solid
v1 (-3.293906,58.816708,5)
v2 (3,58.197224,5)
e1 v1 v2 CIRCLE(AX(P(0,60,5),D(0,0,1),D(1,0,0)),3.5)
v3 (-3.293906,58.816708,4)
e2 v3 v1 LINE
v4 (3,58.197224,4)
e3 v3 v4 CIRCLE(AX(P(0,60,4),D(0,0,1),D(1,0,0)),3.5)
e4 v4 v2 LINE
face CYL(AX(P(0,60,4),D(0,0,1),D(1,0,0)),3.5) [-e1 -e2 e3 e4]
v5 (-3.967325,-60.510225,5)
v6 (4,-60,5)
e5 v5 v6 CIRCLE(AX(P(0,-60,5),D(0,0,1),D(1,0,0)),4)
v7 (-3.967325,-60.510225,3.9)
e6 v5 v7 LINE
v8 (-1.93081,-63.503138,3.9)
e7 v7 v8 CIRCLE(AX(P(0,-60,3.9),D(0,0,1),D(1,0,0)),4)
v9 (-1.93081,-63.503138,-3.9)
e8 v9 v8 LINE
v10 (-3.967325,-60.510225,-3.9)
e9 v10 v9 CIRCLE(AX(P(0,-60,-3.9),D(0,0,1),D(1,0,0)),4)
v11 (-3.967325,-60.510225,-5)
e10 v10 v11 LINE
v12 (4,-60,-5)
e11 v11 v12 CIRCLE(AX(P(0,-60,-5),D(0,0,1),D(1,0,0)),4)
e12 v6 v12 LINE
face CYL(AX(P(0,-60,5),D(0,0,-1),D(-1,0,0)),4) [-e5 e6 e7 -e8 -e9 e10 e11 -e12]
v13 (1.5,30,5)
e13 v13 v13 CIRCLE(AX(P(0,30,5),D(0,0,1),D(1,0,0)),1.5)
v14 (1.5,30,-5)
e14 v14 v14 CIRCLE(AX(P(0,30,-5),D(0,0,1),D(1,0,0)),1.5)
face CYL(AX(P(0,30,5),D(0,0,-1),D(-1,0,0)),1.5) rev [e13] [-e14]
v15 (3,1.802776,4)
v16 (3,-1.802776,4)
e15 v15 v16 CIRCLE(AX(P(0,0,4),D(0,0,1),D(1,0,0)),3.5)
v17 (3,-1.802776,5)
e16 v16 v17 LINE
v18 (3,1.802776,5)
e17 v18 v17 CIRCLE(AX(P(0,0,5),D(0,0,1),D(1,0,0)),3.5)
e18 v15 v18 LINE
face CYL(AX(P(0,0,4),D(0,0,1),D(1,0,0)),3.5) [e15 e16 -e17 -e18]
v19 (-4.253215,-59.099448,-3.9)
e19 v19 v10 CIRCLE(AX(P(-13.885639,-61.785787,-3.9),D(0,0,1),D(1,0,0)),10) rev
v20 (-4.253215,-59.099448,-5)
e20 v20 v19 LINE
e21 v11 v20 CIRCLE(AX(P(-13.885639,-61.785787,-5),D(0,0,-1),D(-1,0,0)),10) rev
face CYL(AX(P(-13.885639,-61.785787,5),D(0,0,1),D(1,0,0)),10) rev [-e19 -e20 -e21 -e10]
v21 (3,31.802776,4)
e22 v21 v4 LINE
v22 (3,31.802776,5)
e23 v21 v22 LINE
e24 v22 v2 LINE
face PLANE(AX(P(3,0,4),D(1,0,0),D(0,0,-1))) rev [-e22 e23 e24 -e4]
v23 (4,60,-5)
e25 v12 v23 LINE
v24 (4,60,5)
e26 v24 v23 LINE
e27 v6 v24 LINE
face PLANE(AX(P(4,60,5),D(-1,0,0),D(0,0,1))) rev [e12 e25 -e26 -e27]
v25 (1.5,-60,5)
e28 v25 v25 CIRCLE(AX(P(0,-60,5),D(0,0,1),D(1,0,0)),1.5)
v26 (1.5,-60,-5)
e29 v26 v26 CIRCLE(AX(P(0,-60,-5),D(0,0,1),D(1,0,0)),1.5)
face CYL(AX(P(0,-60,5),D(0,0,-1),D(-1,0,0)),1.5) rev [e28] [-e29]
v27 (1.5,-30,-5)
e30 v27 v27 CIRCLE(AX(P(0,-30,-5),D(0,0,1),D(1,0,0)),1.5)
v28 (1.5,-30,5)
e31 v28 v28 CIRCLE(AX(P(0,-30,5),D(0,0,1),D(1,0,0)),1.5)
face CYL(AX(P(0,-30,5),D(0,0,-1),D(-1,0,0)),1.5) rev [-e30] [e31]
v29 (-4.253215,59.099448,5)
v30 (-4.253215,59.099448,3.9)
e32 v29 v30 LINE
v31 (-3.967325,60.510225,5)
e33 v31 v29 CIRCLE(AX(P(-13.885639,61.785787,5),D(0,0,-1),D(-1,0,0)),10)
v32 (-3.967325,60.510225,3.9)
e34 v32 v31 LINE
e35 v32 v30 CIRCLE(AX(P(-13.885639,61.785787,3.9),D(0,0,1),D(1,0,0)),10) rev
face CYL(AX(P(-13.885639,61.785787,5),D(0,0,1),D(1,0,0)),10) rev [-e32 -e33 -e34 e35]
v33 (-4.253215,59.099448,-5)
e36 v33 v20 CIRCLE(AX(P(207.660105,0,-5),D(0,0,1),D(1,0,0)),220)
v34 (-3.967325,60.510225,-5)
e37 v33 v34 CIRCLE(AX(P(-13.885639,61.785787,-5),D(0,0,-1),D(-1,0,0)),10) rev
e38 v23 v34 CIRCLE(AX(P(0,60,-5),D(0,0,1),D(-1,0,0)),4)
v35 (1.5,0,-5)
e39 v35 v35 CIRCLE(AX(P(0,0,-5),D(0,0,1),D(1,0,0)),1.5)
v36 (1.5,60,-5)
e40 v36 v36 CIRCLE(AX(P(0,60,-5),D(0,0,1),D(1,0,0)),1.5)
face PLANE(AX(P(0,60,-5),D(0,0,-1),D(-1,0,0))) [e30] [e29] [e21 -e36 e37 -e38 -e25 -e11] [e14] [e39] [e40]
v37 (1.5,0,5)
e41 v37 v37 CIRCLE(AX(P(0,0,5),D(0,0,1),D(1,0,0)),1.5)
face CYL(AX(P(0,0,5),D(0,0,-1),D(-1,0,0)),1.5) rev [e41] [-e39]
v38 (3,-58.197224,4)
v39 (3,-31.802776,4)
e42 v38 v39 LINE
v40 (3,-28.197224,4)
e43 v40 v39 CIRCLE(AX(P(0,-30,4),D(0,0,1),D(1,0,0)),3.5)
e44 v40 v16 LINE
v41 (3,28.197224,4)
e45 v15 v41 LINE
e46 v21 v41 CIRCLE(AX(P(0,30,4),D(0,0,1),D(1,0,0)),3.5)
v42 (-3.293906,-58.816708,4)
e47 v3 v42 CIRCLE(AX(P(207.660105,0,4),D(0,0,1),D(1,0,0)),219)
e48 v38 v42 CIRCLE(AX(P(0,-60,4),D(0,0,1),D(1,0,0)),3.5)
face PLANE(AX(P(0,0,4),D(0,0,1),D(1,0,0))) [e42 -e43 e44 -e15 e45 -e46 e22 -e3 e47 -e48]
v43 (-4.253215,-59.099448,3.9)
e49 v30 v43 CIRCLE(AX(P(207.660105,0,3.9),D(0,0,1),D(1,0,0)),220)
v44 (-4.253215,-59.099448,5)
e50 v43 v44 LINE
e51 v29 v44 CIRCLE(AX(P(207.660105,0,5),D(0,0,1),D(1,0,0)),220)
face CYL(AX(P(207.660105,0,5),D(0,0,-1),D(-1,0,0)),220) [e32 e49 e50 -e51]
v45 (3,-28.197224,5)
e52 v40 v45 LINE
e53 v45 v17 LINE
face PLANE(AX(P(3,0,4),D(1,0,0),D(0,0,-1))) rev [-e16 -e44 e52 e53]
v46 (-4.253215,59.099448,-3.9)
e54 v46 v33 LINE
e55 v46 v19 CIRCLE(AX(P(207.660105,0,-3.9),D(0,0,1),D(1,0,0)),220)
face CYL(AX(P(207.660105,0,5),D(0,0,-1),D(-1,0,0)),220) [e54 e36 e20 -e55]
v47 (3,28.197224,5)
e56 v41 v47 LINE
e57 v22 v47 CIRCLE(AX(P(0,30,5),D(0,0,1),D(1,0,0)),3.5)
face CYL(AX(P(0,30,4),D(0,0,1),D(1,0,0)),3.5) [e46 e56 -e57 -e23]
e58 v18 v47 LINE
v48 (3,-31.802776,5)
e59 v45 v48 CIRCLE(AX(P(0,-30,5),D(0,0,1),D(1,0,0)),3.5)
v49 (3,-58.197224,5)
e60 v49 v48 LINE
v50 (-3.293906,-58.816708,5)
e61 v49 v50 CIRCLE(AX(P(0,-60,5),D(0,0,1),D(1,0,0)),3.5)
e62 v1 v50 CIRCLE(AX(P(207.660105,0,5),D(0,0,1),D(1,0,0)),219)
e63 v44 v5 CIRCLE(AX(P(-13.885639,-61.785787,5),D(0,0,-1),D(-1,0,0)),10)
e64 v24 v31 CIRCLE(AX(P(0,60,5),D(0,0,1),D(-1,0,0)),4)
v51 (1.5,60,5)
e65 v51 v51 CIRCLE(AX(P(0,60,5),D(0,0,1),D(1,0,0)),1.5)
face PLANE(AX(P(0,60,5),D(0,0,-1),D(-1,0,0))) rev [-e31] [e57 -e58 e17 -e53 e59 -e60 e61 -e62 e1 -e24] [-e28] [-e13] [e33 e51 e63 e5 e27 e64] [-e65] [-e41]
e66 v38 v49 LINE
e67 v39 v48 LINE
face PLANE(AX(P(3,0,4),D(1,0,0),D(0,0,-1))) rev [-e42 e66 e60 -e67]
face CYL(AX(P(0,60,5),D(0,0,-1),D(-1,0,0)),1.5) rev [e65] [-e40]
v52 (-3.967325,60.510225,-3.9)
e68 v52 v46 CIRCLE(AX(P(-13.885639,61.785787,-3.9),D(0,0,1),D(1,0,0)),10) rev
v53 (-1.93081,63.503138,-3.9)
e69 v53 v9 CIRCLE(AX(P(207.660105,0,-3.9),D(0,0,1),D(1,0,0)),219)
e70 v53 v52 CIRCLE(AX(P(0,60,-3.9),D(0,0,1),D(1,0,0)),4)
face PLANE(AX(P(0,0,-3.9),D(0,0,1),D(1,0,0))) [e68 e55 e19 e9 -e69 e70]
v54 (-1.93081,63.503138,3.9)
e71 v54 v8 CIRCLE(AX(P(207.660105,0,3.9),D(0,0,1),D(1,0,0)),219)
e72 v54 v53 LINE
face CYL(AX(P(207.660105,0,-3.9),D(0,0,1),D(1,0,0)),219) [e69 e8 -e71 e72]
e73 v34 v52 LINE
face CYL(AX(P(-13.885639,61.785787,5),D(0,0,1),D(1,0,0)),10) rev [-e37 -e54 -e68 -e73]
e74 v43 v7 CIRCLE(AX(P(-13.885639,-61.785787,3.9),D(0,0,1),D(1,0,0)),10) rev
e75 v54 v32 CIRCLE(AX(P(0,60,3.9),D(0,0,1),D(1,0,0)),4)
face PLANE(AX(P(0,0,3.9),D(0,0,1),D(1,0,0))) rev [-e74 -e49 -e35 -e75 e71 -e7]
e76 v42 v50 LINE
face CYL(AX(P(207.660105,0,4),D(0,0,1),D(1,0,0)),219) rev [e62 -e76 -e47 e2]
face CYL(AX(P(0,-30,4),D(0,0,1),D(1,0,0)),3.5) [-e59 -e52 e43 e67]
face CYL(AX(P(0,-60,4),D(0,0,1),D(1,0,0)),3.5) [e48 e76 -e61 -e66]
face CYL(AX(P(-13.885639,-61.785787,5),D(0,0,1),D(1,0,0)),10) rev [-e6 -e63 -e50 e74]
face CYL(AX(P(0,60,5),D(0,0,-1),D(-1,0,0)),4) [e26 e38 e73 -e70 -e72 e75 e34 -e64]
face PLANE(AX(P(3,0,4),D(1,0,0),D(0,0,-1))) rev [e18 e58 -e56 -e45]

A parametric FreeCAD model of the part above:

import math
import FreeCAD as App
import Part
import Sketcher

V = App.Vector
Q = App.Units.Quantity


def edges_at(feature, points):
    """Names of the edges that pass closest to the given points."""
    edges = feature.Shape.Edges
    near = lambda p: min(range(len(edges)), key=lambda i: edges[i].distToShape(Part.Vertex(*p))[0])
    return sorted({f"Edge{near(p) + 1}" for p in points})

doc = App.newDocument("Part")
body = doc.addObject("PartDesign::Body", "Body")

sketch1 = doc.addObject("Sketcher::SketchObject", "Sketch")
body.addObject(sketch1)
sketch1.AttachmentSupport = (doc.XY_Plane, [""])
sketch1.MapMode = "FlatFace"
sketch1.addGeometry([
    Part.LineSegment(V(4, -60, 0), V(4, 60, 0)),
    Part.ArcOfCircle(Part.Circle(V(0, 60, 0), V(0, 0, 1), 4), math.radians(0), math.radians(180)),
    Part.ArcOfCircle(Part.Circle(V(207.7, 0, 0), V(0, 0, 1), 220), math.radians(164), math.radians(196)),
    Part.ArcOfCircle(Part.Circle(V(0, -60, 0), V(0, 0, 1), 4), math.radians(180), math.radians(360)),
    Part.Circle(V(0, -60, 0), V(0, 0, 1), 1.5),
    Part.Circle(V(0, -30, 0), V(0, 0, 1), 1.5),
    Part.Circle(V(0, 0, 0), V(0, 0, 1), 1.5),
    Part.Circle(V(0, 30, 0), V(0, 0, 1), 1.5),
    Part.Circle(V(0, 60, 0), V(0, 0, 1), 1.5),
], False)
sketch1.addConstraint([
    Sketcher.Constraint("Tangent", 0, 2, 1, 1),
    Sketcher.Constraint("Coincident", 1, 2, 2, 1),
    Sketcher.Constraint("Coincident", 2, 2, 3, 1),
    Sketcher.Constraint("Tangent", 3, 2, 0, 1),
    Sketcher.Constraint("Vertical", 0),
    Sketcher.Constraint("Coincident", 6, 3, -1, 1),
    Sketcher.Constraint("Coincident", 4, 3, 3, 3),
    Sketcher.Constraint("Coincident", 8, 3, 1, 3),
    Sketcher.Constraint("Equal", 1, 3),
    Sketcher.Constraint("Equal", 4, 5),
    Sketcher.Constraint("Equal", 5, 6),
    Sketcher.Constraint("Equal", 6, 7),
    Sketcher.Constraint("Equal", 7, 8),
    Sketcher.Constraint("Symmetric", 1, 3, 3, 3, -1, 1),
    Sketcher.Constraint("Symmetric", 5, 3, 7, 3, -1, 1),
    Sketcher.Constraint("PointOnObject", 2, 3, -1),
    Sketcher.Constraint("PointOnObject", 5, 3, -2),
    Sketcher.Constraint("Horizontal", 0, 2, 1, 2),
    Sketcher.Constraint("Diameter", 4, Q("3 mm")),
    Sketcher.Constraint("Radius", 1, Q("4 mm")),
    Sketcher.Constraint("Radius", 2, Q("220 mm")),
    Sketcher.Constraint("DistanceY", 0, 1, 0, 2, Q("120 mm")),
    Sketcher.Constraint("DistanceY", 5, 3, -1, 1, Q("30 mm")),
])
pad1 = doc.addObject("PartDesign::Pad", "Pad")
body.addObject(pad1)
pad1.Profile = sketch1
pad1.Length = 10
pad1.Midplane = True
doc.recompute()

fillet = doc.addObject("PartDesign::Fillet", "Fillet")
body.addObject(fillet)
fillet.Base = (pad1, edges_at(pad1, [(-4, -60, 0), (-4, 60, 0)]))
fillet.Radius = 10

sketch2 = doc.addObject("Sketcher::SketchObject", "Sketch001")
body.addObject(sketch2)
sketch2.AttachmentSupport = (doc.XY_Plane, [""])
sketch2.MapMode = "FlatFace"
sketch2.AttachmentOffset = App.Placement(V(0, 0, 5), App.Rotation())
sketch2.addGeometry([
    Part.ArcOfCircle(Part.Circle(V(0, -60, 0), V(0, 0, 1), 3.5), math.radians(31), math.radians(160)),
    Part.LineSegment(V(3, -58.2, 0), V(3, -31.8, 0)),
    Part.ArcOfCircle(Part.Circle(V(0, -30, 0), V(0, 0, 1), 3.5), math.radians(31), math.radians(329)),
    Part.LineSegment(V(3, -28.2, 0), V(3, -1.8, 0)),
    Part.ArcOfCircle(Part.Circle(V(0, 0, 0), V(0, 0, 1), 3.5), math.radians(31), math.radians(329)),
    Part.LineSegment(V(3, 1.8, 0), V(3, 28.2, 0)),
    Part.ArcOfCircle(Part.Circle(V(0, 30, 0), V(0, 0, 1), 3.5), math.radians(31), math.radians(329)),
    Part.LineSegment(V(3, 31.8, 0), V(3, 58.2, 0)),
    Part.ArcOfCircle(Part.Circle(V(0, 60, 0), V(0, 0, 1), 3.5), math.radians(-160), math.radians(-31)),
    Part.ArcOfCircle(Part.Circle(V(207.7, 0, 0), V(0, 0, 1), 219), math.radians(164), math.radians(196)),
], False)
sketch2.addConstraint([
    Sketcher.Constraint("Coincident", 0, 1, 1, 1),
    Sketcher.Constraint("Coincident", 1, 2, 2, 2),
    Sketcher.Constraint("Coincident", 2, 1, 3, 1),
    Sketcher.Constraint("Coincident", 3, 2, 4, 2),
    Sketcher.Constraint("Coincident", 4, 1, 5, 1),
    Sketcher.Constraint("Coincident", 5, 2, 6, 2),
    Sketcher.Constraint("Coincident", 6, 1, 7, 1),
    Sketcher.Constraint("Coincident", 7, 2, 8, 2),
    Sketcher.Constraint("Coincident", 8, 1, 9, 1),
    Sketcher.Constraint("Coincident", 9, 2, 0, 2),
    Sketcher.Constraint("Vertical", 1),
    Sketcher.Constraint("Vertical", 3),
    Sketcher.Constraint("Vertical", 5),
    Sketcher.Constraint("Vertical", 7),
    Sketcher.Constraint("Coincident", 4, 3, -1, 1),
    Sketcher.Constraint("Equal", 0, 2),
    Sketcher.Constraint("Equal", 2, 4),
    Sketcher.Constraint("Equal", 4, 6),
    Sketcher.Constraint("Equal", 6, 8),
    Sketcher.Constraint("Symmetric", 2, 3, 6, 3, -1, 1),
    Sketcher.Constraint("Symmetric", 0, 3, 8, 3, -1, 1),
    Sketcher.Constraint("Symmetric", 2, 1, 5, 2, -1),
    Sketcher.Constraint("Symmetric", 0, 1, 7, 2, -1),
    Sketcher.Constraint("PointOnObject", 9, 3, -1),
    Sketcher.Constraint("Vertical", 1, 2, 2, 1),
    Sketcher.Constraint("Equal", 1, 3),
    Sketcher.Constraint("Radius", 9, Q("219 mm")),
    Sketcher.Constraint("Radius", 0, Q("3.5 mm")),
    Sketcher.Constraint("DistanceY", 0, 3, -1, 1, Q("60 mm")),
    Sketcher.Constraint("DistanceX", -1, 1, 0, 1, Q("3 mm")),
    Sketcher.Constraint("DistanceX", -1, 1, 9, 3, Q("207.660105 mm")),
])
pocket1 = doc.addObject("PartDesign::Pocket", "Pocket")
body.addObject(pocket1)
pocket1.Profile = sketch2
pocket1.Length = 1

sketch3 = doc.addObject("Sketcher::SketchObject", "Sketch002")
body.addObject(sketch3)
sketch3.AttachmentSupport = (doc.XY_Plane, [""])
sketch3.MapMode = "FlatFace"
sketch3.addGeometry([
    Part.ArcOfCircle(Part.Circle(V(208, 0, 0), V(0, 0, 1), 219), math.radians(161.36), math.radians(164.42)),
    Part.LineSegment(V(0, 70, 0), V(-50, 70, 0)),
    Part.LineSegment(V(-50, 70, 0), V(-50, -70, 0)),
    Part.LineSegment(V(-50, -70, 0), V(0, -70, 0)),
    Part.ArcOfCircle(Part.Circle(V(208, 0, 0), V(0, 0, 1), 219), math.radians(-164.42), math.radians(-161.36)),
    Part.ArcOfCircle(Part.Circle(V(208, 0, 0), V(0, 0, 1), 219), math.radians(164), math.radians(196)),
], False)
sketch3.addConstraint([
    Sketcher.Constraint("Coincident", 0, 1, 1, 1),
    Sketcher.Constraint("Coincident", 1, 2, 2, 1),
    Sketcher.Constraint("Coincident", 2, 2, 3, 1),
    Sketcher.Constraint("Coincident", 3, 2, 4, 2),
    Sketcher.Constraint("Tangent", 4, 1, 5, 2),
    Sketcher.Constraint("Tangent", 5, 1, 0, 2),
    Sketcher.Constraint("Horizontal", 1),
    Sketcher.Constraint("Vertical", 2),
    Sketcher.Constraint("Horizontal", 3),
    Sketcher.Constraint("Coincident", 4, 3, 0, 3),
    Sketcher.Constraint("Symmetric", 0, 1, 3, 2, -1),
    Sketcher.Constraint("Vertical", 4, 1, 5, 1),
    Sketcher.Constraint("Radius", 0, Q("218.999999 mm")),
    Sketcher.Constraint("DistanceX", 1, 2, 1, 1, Q("50 mm")),
    Sketcher.Constraint("DistanceY", 2, 2, 2, 1, Q("140 mm")),
    Sketcher.Constraint("DistanceX", -1, 1, 0, 1, Q("0.148659 mm")),
    Sketcher.Constraint("DistanceX", 4, 1, 4, 3, Q("210.95401 mm")),
])
pocket2 = doc.addObject("PartDesign::Pocket", "Pocket001")
body.addObject(pocket2)
pocket2.Profile = sketch3
pocket2.Length = 7.8
pocket2.Midplane = True

doc.recompute()
